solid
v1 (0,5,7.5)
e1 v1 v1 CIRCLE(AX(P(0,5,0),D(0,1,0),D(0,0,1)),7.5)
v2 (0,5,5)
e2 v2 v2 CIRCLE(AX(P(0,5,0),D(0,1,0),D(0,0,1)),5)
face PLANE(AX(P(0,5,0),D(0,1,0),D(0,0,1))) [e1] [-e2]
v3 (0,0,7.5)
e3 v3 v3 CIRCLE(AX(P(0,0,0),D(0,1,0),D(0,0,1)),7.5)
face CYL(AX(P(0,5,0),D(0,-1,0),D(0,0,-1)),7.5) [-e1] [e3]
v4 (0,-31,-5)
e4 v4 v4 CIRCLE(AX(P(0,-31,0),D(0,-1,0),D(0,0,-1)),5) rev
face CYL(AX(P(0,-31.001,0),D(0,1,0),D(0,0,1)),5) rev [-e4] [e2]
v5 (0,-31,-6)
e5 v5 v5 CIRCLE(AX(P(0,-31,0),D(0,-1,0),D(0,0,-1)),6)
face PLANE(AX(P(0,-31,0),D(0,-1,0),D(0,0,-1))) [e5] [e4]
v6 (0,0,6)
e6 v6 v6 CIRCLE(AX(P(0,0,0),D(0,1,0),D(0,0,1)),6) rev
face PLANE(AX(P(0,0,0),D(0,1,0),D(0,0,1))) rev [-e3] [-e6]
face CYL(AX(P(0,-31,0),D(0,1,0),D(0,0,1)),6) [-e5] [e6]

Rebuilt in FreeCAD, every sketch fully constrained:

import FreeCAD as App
import Part
import Sketcher
from FreeCAD import Vector
Q = App.Units.Quantity

doc = App.newDocument("Part")
body = doc.addObject("PartDesign::Body", "Body")

sketch1 = body.newObject("Sketcher::SketchObject", "Sketch")
sketch1.AttachmentSupport = (doc.getObject("XZ_Plane"), [""])
sketch1.MapMode = "FlatFace"
sketch1.addGeometry(Part.Circle(Vector(0, 0, 0), Vector(0, 0, 1), 8), False)
sketch1.addConstraint([
    Sketcher.Constraint("Coincident", 0, 3, -1, 1),
    Sketcher.Constraint("Diameter", 0, Q("15 mm")),
])
pad1 = body.newObject("PartDesign::Pad", "Pad")
pad1.Profile = sketch1
pad1.Length = 5
pad1.Reversed = True

sketch2 = body.newObject("Sketcher::SketchObject", "Sketch001")
sketch2.AttachmentSupport = (doc.getObject("XZ_Plane"), [""])
sketch2.MapMode = "FlatFace"
sketch2.addGeometry(Part.Circle(Vector(0, 0, 0), Vector(0, 0, 1), 6), False)
sketch2.addConstraint([
    Sketcher.Constraint("Coincident", 0, 3, -1, 1),
    Sketcher.Constraint("Diameter", 0, Q("12 mm")),
])
pad2 = body.newObject("PartDesign::Pad", "Pad001")
pad2.Profile = sketch2
pad2.Length = 31

sketch3 = body.newObject("Sketcher::SketchObject", "Sketch002")
sketch3.AttachmentSupport = (doc.getObject("XZ_Plane"), [""])
sketch3.MapMode = "FlatFace"
sketch3.AttachmentOffset = App.Placement(Vector(0, 0, -5), App.Rotation())
sketch3.addGeometry(Part.Circle(Vector(0, 0, 0), Vector(0, 0, 1), 5), False)
sketch3.addConstraint([
    Sketcher.Constraint("Coincident", 0, 3, -1, 1),
    Sketcher.Constraint("Diameter", 0, Q("10 mm")),
])
pocket1 = body.newObject("PartDesign::Pocket", "Pocket")
pocket1.Profile = sketch3
pocket1.Type = "UpToFirst"
pocket1.Reversed = True

doc.recompute()
